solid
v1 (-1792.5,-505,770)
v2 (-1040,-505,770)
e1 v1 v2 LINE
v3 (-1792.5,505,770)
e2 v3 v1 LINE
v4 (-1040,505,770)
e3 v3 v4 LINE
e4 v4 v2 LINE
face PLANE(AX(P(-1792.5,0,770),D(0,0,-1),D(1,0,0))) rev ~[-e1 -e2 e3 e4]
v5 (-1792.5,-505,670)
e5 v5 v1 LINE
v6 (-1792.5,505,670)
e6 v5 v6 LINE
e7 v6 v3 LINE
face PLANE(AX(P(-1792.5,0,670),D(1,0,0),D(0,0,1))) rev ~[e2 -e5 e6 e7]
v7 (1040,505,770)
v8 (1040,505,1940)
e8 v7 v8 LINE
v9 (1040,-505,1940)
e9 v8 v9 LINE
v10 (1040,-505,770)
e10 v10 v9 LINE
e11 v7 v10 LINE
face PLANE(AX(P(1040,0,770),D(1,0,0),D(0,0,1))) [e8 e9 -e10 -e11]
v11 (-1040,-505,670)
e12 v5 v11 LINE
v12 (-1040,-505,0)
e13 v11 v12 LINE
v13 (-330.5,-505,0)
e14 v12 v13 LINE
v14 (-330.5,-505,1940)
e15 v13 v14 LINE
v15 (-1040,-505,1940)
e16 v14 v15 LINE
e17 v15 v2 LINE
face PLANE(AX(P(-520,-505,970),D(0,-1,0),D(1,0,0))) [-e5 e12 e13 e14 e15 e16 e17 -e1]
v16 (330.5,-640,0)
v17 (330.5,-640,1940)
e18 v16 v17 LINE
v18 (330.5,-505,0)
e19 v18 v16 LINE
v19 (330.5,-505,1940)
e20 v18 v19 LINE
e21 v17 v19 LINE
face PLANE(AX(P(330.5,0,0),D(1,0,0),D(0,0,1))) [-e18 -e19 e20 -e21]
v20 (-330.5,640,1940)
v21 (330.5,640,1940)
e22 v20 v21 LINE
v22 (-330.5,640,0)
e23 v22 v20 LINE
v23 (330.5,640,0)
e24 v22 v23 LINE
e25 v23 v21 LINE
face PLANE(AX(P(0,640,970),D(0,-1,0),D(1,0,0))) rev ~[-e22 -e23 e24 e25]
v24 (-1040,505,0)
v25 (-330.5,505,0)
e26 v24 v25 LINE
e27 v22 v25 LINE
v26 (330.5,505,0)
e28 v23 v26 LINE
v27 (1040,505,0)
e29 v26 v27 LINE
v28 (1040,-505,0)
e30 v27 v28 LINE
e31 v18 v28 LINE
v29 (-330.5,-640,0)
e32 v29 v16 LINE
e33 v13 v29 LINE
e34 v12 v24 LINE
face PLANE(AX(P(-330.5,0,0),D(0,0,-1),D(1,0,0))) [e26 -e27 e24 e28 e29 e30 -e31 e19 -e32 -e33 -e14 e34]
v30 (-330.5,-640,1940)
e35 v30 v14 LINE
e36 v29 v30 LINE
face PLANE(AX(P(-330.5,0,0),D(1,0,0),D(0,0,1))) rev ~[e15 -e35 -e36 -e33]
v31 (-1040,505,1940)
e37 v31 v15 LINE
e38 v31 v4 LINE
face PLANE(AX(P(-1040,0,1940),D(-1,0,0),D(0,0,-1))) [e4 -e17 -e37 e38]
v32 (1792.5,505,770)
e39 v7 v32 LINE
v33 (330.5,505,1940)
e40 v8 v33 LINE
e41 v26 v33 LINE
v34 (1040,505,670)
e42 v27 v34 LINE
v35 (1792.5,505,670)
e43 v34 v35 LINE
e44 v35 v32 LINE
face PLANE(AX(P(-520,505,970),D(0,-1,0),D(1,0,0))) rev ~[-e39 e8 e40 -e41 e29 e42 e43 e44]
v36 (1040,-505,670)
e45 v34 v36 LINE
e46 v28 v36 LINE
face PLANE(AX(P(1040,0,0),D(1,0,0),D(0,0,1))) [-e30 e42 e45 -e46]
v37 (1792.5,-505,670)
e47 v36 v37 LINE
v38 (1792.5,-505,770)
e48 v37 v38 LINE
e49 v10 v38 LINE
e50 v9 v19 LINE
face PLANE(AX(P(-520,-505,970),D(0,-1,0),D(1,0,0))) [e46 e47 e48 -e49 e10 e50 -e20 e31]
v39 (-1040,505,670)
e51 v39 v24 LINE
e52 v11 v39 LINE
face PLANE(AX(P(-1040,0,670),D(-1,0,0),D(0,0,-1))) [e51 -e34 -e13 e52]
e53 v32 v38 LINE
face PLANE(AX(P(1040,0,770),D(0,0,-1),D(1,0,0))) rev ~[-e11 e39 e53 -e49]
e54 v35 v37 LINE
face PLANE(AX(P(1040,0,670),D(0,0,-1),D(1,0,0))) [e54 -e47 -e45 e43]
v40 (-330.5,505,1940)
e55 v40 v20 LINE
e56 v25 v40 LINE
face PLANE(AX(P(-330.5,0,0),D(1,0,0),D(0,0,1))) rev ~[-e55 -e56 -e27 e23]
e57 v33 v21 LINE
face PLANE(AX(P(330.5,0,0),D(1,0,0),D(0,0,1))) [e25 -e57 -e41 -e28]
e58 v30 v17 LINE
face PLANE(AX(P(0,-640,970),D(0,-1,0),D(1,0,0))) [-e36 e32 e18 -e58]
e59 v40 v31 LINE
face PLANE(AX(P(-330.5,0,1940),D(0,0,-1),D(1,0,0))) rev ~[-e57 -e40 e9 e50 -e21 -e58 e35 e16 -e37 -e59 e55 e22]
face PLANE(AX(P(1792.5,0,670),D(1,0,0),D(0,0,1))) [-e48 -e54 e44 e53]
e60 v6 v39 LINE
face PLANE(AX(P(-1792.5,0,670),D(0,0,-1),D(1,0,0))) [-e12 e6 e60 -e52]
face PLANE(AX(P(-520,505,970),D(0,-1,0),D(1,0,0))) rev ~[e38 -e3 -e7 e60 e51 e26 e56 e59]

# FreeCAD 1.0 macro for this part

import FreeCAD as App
import Part
import Sketcher

doc = App.newDocument("Part")
body = doc.addObject("PartDesign::Body", "Body")

# Sketch on XZ plane
sketch1 = body.newObject("Sketcher::SketchObject", "Sketch")
sketch1.AttachmentSupport = (doc.getObject("XZ_Plane"), [""])
sketch1.MapMode = "FlatFace"
sketch1.addGeometry(Part.LineSegment(App.Vector(-1040, 0, 0), App.Vector(1040, 0, 0)), False)
sketch1.addGeometry(Part.LineSegment(App.Vector(1040, 0, 0), App.Vector(1040, 670, 0)), False)
sketch1.addGeometry(Part.LineSegment(App.Vector(1040, 670, 0), App.Vector(1792, 670, 0)), False)
sketch1.addGeometry(Part.LineSegment(App.Vector(1792, 670, 0), App.Vector(1792, 770, 0)), False)
sketch1.addGeometry(Part.LineSegment(App.Vector(1792, 770, 0), App.Vector(1040, 770, 0)), False)
sketch1.addGeometry(Part.LineSegment(App.Vector(1040, 770, 0), App.Vector(1040, 1940, 0)), False)
sketch1.addGeometry(Part.LineSegment(App.Vector(1040, 1940, 0), App.Vector(-1040, 1940, 0)), False)
sketch1.addGeometry(Part.LineSegment(App.Vector(-1040, 1940, 0), App.Vector(-1040, 770, 0)), False)
sketch1.addGeometry(Part.LineSegment(App.Vector(-1040, 770, 0), App.Vector(-1792, 770, 0)), False)
sketch1.addGeometry(Part.LineSegment(App.Vector(-1792, 770, 0), App.Vector(-1792, 670, 0)), False)
sketch1.addGeometry(Part.LineSegment(App.Vector(-1792, 670, 0), App.Vector(-1040, 670, 0)), False)
sketch1.addGeometry(Part.LineSegment(App.Vector(-1040, 670, 0), App.Vector(-1040, 0, 0)), False)
sketch1.addConstraint(Sketcher.Constraint("Coincident", 0, 2, 1, 1))
sketch1.addConstraint(Sketcher.Constraint("Coincident", 1, 2, 2, 1))
sketch1.addConstraint(Sketcher.Constraint("Coincident", 2, 2, 3, 1))
sketch1.addConstraint(Sketcher.Constraint("Coincident", 3, 2, 4, 1))
sketch1.addConstraint(Sketcher.Constraint("Coincident", 4, 2, 5, 1))
sketch1.addConstraint(Sketcher.Constraint("Coincident", 5, 2, 6, 1))
sketch1.addConstraint(Sketcher.Constraint("Coincident", 6, 2, 7, 1))
sketch1.addConstraint(Sketcher.Constraint("Coincident", 7, 2, 8, 1))
sketch1.addConstraint(Sketcher.Constraint("Coincident", 8, 2, 9, 1))
sketch1.addConstraint(Sketcher.Constraint("Coincident", 9, 2, 10, 1))
sketch1.addConstraint(Sketcher.Constraint("Coincident", 10, 2, 11, 1))
sketch1.addConstraint(Sketcher.Constraint("Coincident", 11, 2, 0, 1))
sketch1.addConstraint(Sketcher.Constraint("Horizontal", 0))
sketch1.addConstraint(Sketcher.Constraint("Vertical", 1))
sketch1.addConstraint(Sketcher.Constraint("Horizontal", 2))
sketch1.addConstraint(Sketcher.Constraint("Vertical", 3))
sketch1.addConstraint(Sketcher.Constraint("Horizontal", 4))
sketch1.addConstraint(Sketcher.Constraint("Vertical", 5))
sketch1.addConstraint(Sketcher.Constraint("Horizontal", 6))
sketch1.addConstraint(Sketcher.Constraint("Vertical", 7))
sketch1.addConstraint(Sketcher.Constraint("Horizontal", 8))
sketch1.addConstraint(Sketcher.Constraint("Vertical", 9))
sketch1.addConstraint(Sketcher.Constraint("Horizontal", 10))
sketch1.addConstraint(Sketcher.Constraint("Vertical", 11))
sketch1.addConstraint(Sketcher.Constraint("Symmetric", 0, 2, 11, 2, -1, 1))
sketch1.addConstraint(Sketcher.Constraint("Symmetric", 4, 2, 7, 2, -2))
sketch1.addConstraint(Sketcher.Constraint("Symmetric", 2, 2, 9, 2, -2))
sketch1.addConstraint(Sketcher.Constraint("Vertical", 1, 2, 4, 2))
sketch1.addConstraint(Sketcher.Constraint("DistanceX", 0, 1, 0, 2, 2080.0))
sketch1.addConstraint(Sketcher.Constraint("DistanceY", 1, 1, 1, 2, 670.0))
sketch1.addConstraint(Sketcher.Constraint("DistanceY", 3, 1, 3, 2, 100.0))
sketch1.addConstraint(Sketcher.Constraint("DistanceY", 5, 1, 5, 2, 1170.0))
sketch1.addConstraint(Sketcher.Constraint("DistanceX", 2, 1, 2, 2, 752.5))
pad1 = body.newObject("PartDesign::Pad", "Pad")
pad1.Profile = sketch1
pad1.Length = 1010
pad1.Midplane = True

# Sketch on XZ plane
sketch2 = body.newObject("Sketcher::SketchObject", "Sketch001")
sketch2.AttachmentSupport = (doc.getObject("XZ_Plane"), [""])
sketch2.MapMode = "FlatFace"
sketch2.addGeometry(Part.LineSegment(App.Vector(-330, 1940, 0), App.Vector(-330, 0, 0)), False)
sketch2.addGeometry(Part.LineSegment(App.Vector(-330, 0, 0), App.Vector(330, 0, 0)), False)
sketch2.addGeometry(Part.LineSegment(App.Vector(330, 0, 0), App.Vector(330, 1940, 0)), False)
sketch2.addGeometry(Part.LineSegment(App.Vector(330, 1940, 0), App.Vector(-330, 1940, 0)), False)
sketch2.addConstraint(Sketcher.Constraint("Coincident", 0, 2, 1, 1))
sketch2.addConstraint(Sketcher.Constraint("Coincident", 1, 2, 2, 1))
sketch2.addConstraint(Sketcher.Constraint("Coincident", 2, 2, 3, 1))
sketch2.addConstraint(Sketcher.Constraint("Coincident", 3, 2, 0, 1))
sketch2.addConstraint(Sketcher.Constraint("Vertical", 0))
sketch2.addConstraint(Sketcher.Constraint("Horizontal", 1))
sketch2.addConstraint(Sketcher.Constraint("Vertical", 2))
sketch2.addConstraint(Sketcher.Constraint("Horizontal", 3))
sketch2.addConstraint(Sketcher.Constraint("Symmetric", 0, 2, 1, 2, -1, 1))
sketch2.addConstraint(Sketcher.Constraint("DistanceX", 1, 1, 1, 2, 661.0))
sketch2.addConstraint(Sketcher.Constraint("DistanceY", 0, 2, 0, 1, 1940.0))
pad2 = body.newObject("PartDesign::Pad", "Pad001")
pad2.Profile = sketch2
pad2.Length = 1280
pad2.Midplane = True

doc.recompute()
